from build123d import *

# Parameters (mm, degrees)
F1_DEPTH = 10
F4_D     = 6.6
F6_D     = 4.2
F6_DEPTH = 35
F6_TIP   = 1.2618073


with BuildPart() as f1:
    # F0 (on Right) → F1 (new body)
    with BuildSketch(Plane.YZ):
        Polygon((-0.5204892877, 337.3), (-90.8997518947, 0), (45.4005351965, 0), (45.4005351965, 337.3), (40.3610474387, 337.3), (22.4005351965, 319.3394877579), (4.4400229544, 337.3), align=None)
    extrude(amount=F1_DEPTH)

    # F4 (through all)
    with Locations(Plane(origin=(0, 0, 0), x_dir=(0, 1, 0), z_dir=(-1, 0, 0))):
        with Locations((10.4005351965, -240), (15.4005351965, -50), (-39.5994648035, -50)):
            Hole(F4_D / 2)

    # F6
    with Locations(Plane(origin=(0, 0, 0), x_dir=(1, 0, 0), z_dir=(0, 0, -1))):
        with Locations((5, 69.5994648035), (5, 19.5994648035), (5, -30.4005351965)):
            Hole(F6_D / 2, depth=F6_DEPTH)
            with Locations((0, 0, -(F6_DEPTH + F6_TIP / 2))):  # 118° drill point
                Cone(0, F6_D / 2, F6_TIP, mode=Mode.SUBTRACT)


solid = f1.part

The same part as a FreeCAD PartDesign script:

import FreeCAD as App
import Part
import Sketcher

V = App.Vector
Q = App.Units.Quantity


def add_polygon(sketch, points):
    """Adds a closed chain of lines whose ends are joined by coincident constraints."""
    first, n = sketch.GeometryCount, len(points)
    for a, b in zip(points, points[1:] + points[:1]):
        sketch.addGeometry(Part.LineSegment(App.Vector(*a, 0), App.Vector(*b, 0)), False)
    for i in range(n):
        sketch.addConstraint(Sketcher.Constraint("Coincident", first + i, 2, first + (i + 1) % n, 1))

doc = App.newDocument("Part")
body = doc.addObject("PartDesign::Body", "Body")

sketch1 = body.newObject("Sketcher::SketchObject", "Sketch")
sketch1.AttachmentSupport = (doc.getObject("YZ_Plane"), [""])
sketch1.MapMode = "FlatFace"
add_polygon(sketch1, [(-0.520489, 337.3), (-90.899752, 0), (45.400535, 0), (45.400535, 337.3), (40.361047, 337.3), (22.400535, 319.339488), (4.440023, 337.3)])
sketch1.addConstraint(Sketcher.Constraint("Horizontal", 1))
sketch1.addConstraint(Sketcher.Constraint("Vertical", 2))
sketch1.addConstraint(Sketcher.Constraint("Horizontal", 3))
sketch1.addConstraint(Sketcher.Constraint("Horizontal", 6))
sketch1.addConstraint(Sketcher.Constraint("PointOnObject", 0, 2, -1))
sketch1.addConstraint(Sketcher.Constraint("Perpendicular", 4, 5))
sketch1.addConstraint(Sketcher.Constraint("Horizontal", 3, 2, 5, 2))
sketch1.addConstraint(Sketcher.Constraint("Equal", 4, 5))
sketch1.addConstraint(Sketcher.Constraint("Angle", 0, Q("-105 deg")))
sketch1.addConstraint(Sketcher.Constraint("DistanceY", 2, 1, 2, 2, Q("337.3 mm")))
sketch1.addConstraint(Sketcher.Constraint("DistanceX", 4, 2, 2, 2, Q("23 mm")))
sketch1.addConstraint(Sketcher.Constraint("Distance", 4, Q("25.4 mm")))
sketch1.addConstraint(Sketcher.Constraint("DistanceX", 0, 2, 3, 2, Q("131.260799 mm")))
sketch1.addConstraint(Sketcher.Constraint("DistanceX", 0, 2, -1, 1, Q("90.899752 mm")))
pad1 = body.newObject("PartDesign::Pad", "Pad")
pad1.Profile = sketch1
pad1.Length = 10

sketch2 = body.newObject("Sketcher::SketchObject", "Sketch001")
sketch2.AttachmentSupport = (doc.getObject("YZ_Plane"), [""])
sketch2.MapMode = "FlatFace"
sketch2.addGeometry(Part.Circle(V(10.400535, 240, 0), V(0, 0, 1), 3.3), False)
sketch2.addGeometry(Part.Circle(V(15.400535, 50, 0), V(0, 0, 1), 3.3), False)
sketch2.addGeometry(Part.Circle(V(-39.599465, 50, 0), V(0, 0, 1), 3.3), False)
sketch2.addConstraint(Sketcher.Constraint("Equal", 0, 1))
sketch2.addConstraint(Sketcher.Constraint("Equal", 1, 2))
sketch2.addConstraint(Sketcher.Constraint("Horizontal", 1, 3, 2, 3))
sketch2.addConstraint(Sketcher.Constraint("Diameter", 0, Q("6.6 mm")))
sketch2.addConstraint(Sketcher.Constraint("DistanceY", -1, 1, 0, 3, Q("240 mm")))
sketch2.addConstraint(Sketcher.Constraint("DistanceY", -1, 1, 1, 3, Q("50 mm")))
sketch2.addConstraint(Sketcher.Constraint("DistanceX", 0, 3, 1, 3, Q("5 mm")))
sketch2.addConstraint(Sketcher.Constraint("DistanceX", 2, 3, 1, 3, Q("55 mm")))
sketch2.addConstraint(Sketcher.Constraint("DistanceX", -1, 1, 0, 3, Q("10.400535 mm")))
doc.recompute()
hole = body.newObject("PartDesign::Hole", "Hole")
hole.Profile = sketch2
hole.ThreadType = "None"
hole.Diameter = 6.6
hole.DepthType = "ThroughAll"
hole.Reversed = True

sketch3 = body.newObject("Sketcher::SketchObject", "Sketch002")
sketch3.AttachmentSupport = (doc.getObject("XY_Plane"), [""])
sketch3.MapMode = "FlatFace"
sketch3.addGeometry(Part.Circle(V(5, -69.599465, 0), V(0, 0, 1), 2.1), False)
sketch3.addGeometry(Part.Circle(V(5, -19.599465, 0), V(0, 0, 1), 2.1), False)
sketch3.addGeometry(Part.Circle(V(5, 30.400535, 0), V(0, 0, 1), 2.1), False)
sketch3.addConstraint(Sketcher.Constraint("Equal", 0, 1))
sketch3.addConstraint(Sketcher.Constraint("Equal", 1, 2))
sketch3.addConstraint(Sketcher.Constraint("Vertical", 0, 3, 1, 3))
sketch3.addConstraint(Sketcher.Constraint("Vertical", 1, 3, 2, 3))
sketch3.addConstraint(Sketcher.Constraint("Diameter", 0, Q("4.2 mm")))
sketch3.addConstraint(Sketcher.Constraint("DistanceX", -1, 1, 0, 3, Q("5 mm")))
sketch3.addConstraint(Sketcher.Constraint("DistanceY", 0, 3, 1, 3, Q("50 mm")))
sketch3.addConstraint(Sketcher.Constraint("DistanceY", 1, 3, 2, 3, Q("50 mm")))
sketch3.addConstraint(Sketcher.Constraint("DistanceY", 0, 3, -1, 1, Q("69.599465 mm")))
doc.recompute()
hole2 = body.newObject("PartDesign::Hole", "Hole001")
hole2.Profile = sketch3
hole2.ThreadType = "None"
hole2.Diameter = 4.2
hole2.DepthType = "Dimension"
hole2.Depth = 35
hole2.DrillPoint = "Angled"
hole2.DrillPointAngle = 118
hole2.Reversed = True

doc.recompute()
